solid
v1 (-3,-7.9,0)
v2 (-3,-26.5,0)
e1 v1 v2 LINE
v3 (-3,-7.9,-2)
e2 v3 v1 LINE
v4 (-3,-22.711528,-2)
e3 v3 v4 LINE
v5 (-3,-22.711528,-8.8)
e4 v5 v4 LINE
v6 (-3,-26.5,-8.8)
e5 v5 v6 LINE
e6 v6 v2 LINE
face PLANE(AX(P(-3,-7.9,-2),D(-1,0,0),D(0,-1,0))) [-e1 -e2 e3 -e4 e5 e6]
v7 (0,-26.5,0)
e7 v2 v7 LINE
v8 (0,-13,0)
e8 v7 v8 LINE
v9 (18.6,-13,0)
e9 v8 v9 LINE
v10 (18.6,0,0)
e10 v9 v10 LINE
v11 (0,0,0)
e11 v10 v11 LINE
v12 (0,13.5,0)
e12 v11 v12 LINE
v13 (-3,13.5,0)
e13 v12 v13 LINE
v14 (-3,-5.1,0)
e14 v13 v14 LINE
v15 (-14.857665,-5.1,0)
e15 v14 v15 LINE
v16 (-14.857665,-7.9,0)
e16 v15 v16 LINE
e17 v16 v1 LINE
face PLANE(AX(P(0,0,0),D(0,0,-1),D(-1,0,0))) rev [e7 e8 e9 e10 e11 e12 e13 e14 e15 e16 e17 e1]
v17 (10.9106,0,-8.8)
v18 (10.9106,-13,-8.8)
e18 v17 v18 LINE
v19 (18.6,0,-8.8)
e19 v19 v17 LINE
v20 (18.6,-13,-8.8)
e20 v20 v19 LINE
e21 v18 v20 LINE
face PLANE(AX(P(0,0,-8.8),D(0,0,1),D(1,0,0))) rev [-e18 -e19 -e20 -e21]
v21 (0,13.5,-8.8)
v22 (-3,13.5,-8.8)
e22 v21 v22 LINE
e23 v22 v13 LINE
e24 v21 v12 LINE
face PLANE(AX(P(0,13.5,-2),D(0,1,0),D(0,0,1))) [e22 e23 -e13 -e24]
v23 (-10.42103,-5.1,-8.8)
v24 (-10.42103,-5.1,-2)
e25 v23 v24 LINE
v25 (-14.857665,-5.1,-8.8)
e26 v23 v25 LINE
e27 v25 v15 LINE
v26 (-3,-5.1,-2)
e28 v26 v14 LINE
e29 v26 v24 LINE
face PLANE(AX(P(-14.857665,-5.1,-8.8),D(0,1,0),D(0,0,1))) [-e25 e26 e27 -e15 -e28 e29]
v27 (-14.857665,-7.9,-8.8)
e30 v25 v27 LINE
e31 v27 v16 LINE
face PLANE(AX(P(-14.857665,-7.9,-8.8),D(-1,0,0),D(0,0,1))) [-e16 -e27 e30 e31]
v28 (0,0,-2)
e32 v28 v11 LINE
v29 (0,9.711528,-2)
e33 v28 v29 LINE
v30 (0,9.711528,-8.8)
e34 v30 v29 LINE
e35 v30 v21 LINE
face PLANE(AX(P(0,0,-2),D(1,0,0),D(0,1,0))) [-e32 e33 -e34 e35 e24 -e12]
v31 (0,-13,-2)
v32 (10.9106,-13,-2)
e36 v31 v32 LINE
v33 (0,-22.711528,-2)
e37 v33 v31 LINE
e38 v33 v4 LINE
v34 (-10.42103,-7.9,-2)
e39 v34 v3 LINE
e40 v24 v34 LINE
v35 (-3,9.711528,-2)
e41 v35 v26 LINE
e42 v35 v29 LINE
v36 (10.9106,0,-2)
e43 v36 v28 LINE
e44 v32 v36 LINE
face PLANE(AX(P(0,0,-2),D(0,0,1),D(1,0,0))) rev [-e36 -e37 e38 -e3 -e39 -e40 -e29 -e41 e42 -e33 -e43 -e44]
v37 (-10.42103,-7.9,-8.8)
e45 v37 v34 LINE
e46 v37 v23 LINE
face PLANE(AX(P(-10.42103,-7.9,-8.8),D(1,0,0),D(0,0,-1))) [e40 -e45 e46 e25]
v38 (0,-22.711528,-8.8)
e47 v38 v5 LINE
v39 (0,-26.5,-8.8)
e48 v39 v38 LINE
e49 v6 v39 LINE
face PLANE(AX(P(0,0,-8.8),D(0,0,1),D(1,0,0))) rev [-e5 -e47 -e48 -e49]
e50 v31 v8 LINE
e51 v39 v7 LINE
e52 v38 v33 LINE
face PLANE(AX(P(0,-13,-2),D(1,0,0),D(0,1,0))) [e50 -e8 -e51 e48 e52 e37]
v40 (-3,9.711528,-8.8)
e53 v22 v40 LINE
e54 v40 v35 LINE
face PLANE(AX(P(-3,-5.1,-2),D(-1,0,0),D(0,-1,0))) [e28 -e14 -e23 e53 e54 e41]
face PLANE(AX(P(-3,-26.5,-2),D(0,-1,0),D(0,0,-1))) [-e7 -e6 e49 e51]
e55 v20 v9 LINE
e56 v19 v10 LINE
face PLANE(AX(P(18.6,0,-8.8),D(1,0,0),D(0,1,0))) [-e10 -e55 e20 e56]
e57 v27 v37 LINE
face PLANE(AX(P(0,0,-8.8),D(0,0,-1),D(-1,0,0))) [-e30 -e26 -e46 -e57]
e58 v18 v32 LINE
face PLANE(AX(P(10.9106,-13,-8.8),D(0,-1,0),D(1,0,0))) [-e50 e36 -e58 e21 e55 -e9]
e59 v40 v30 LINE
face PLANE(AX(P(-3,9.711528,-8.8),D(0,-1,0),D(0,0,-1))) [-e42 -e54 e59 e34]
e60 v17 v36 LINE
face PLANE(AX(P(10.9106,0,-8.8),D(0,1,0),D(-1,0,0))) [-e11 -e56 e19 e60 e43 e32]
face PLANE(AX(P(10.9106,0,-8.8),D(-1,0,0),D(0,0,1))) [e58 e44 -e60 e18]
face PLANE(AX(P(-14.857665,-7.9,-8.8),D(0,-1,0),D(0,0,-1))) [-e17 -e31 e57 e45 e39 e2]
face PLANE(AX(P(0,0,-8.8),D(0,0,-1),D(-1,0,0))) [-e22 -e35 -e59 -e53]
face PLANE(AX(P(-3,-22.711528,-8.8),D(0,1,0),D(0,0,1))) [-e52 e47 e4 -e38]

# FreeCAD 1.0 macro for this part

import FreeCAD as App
import Part
import Sketcher

V = App.Vector

doc = App.newDocument("Part")
params = doc.addObject("Spreadsheet::Sheet", "Params")
for row, (alias, value) in enumerate([
    ("sketch1_height", "2.8 mm"),
    ("pad1_length", "8.8 mm"),
    ("sketch2_height", "13 mm"),
    ("pad2_length", "8.8 mm"),
    ("sketch3_width", "3 mm"),
    ("pad3_length", "8.8 mm"),
    ("sketch4_width", "3 mm"),
    ("pad4_length", "8.8 mm"),
    ("sketch5_width", "3 mm"),
    ("sketch5_height", "13 mm"),
    ("sketch5_width2", "18.6 mm"),
    ("sketch5_height2", "13.5 mm"),
    ("pad5_length", "2 mm"),
], start=1):
    params.set(f"A{row}", alias)
    params.set(f"B{row}", "=" + value)
    params.setAlias(f"B{row}", alias)

body = doc.addObject("PartDesign::Body", "Body")

# Sketch on XY plane
sketch1 = body.newObject("Sketcher::SketchObject", "Sketch")
sketch1.AttachmentSupport = (doc.getObject("XY_Plane"), [""])
sketch1.MapMode = "FlatFace"
sketch1.addGeometry([
    Part.LineSegment(V(-14.9, -5.1, 0), V(-14.9, -7.9, 0)),
    Part.LineSegment(V(-14.9, -7.9, 0), V(-10.4, -7.9, 0)),
    Part.LineSegment(V(-10.4, -7.9, 0), V(-10.4, -5.1, 0)),
    Part.LineSegment(V(-10.4, -5.1, 0), V(-14.9, -5.1, 0)),
], False)
sketch1.addConstraint([
    Sketcher.Constraint("Coincident", 0, 2, 1, 1),
    Sketcher.Constraint("Coincident", 1, 2, 2, 1),
    Sketcher.Constraint("Coincident", 2, 2, 3, 1),
    Sketcher.Constraint("Coincident", 3, 2, 0, 1),
    Sketcher.Constraint("Vertical", 0),
    Sketcher.Constraint("Horizontal", 1),
    Sketcher.Constraint("Vertical", 2),
    Sketcher.Constraint("Horizontal", 3),
    Sketcher.Constraint("DistanceY", 0, 2, 0, 1, 2.8),
    Sketcher.Constraint("DistanceY", 0, 2, -1, 1, 7.9),
    Sketcher.Constraint("DistanceX", 1, 1, 1, 2, 4.436636),
    Sketcher.Constraint("DistanceX", 1, 2, -1, 1, 10.42103),
])
sketch1.setExpression("Constraints[8]", "Params.sketch1_height")
pad1 = body.newObject("PartDesign::Pad", "Pad")
pad1.Profile = sketch1
pad1.setExpression("Length", "Params.pad1_length")
pad1.Reversed = True
body2 = doc.addObject("PartDesign::Body", "Body001")

# Sketch on XY plane
sketch2 = body2.newObject("Sketcher::SketchObject", "Sketch001")
sketch2.AttachmentSupport = (doc.getObject("XY_Plane001"), [""])
sketch2.MapMode = "FlatFace"
sketch2.addGeometry([
    Part.LineSegment(V(11, 0, 0), V(11, -13, 0)),
    Part.LineSegment(V(11, -13, 0), V(19, -13, 0)),
    Part.LineSegment(V(19, -13, 0), V(19, 0, 0)),
    Part.LineSegment(V(19, 0, 0), V(11, 0, 0)),
], False)
sketch2.addConstraint([
    Sketcher.Constraint("Coincident", 0, 2, 1, 1),
    Sketcher.Constraint("Coincident", 1, 2, 2, 1),
    Sketcher.Constraint("Coincident", 2, 2, 3, 1),
    Sketcher.Constraint("Coincident", 3, 2, 0, 1),
    Sketcher.Constraint("Vertical", 0),
    Sketcher.Constraint("Horizontal", 1),
    Sketcher.Constraint("Vertical", 2),
    Sketcher.Constraint("Horizontal", 3),
    Sketcher.Constraint("PointOnObject", 2, 2, -1),
    Sketcher.Constraint("DistanceY", 0, 2, 0, 1, 13.0),
    Sketcher.Constraint("DistanceX", -1, 1, 1, 2, 18.6),
    Sketcher.Constraint("DistanceX", 1, 1, 1, 2, 7.6894),
])
sketch2.setExpression("Constraints[9]", "Params.sketch2_height")
pad2 = body2.newObject("PartDesign::Pad", "Pad001")
pad2.Profile = sketch2
pad2.setExpression("Length", "Params.pad2_length")
pad2.Reversed = True
body3 = doc.addObject("PartDesign::Body", "Body002")

# Sketch on XY plane
sketch3 = body3.newObject("Sketcher::SketchObject", "Sketch002")
sketch3.AttachmentSupport = (doc.getObject("XY_Plane002"), [""])
sketch3.MapMode = "FlatFace"
sketch3.addGeometry([
    Part.LineSegment(V(-3, 13.5, 0), V(-3, 9.7, 0)),
    Part.LineSegment(V(-3, 9.7, 0), V(0, 9.7, 0)),
    Part.LineSegment(V(0, 9.7, 0), V(0, 13.5, 0)),
    Part.LineSegment(V(0, 13.5, 0), V(-3, 13.5, 0)),
], False)
sketch3.addConstraint([
    Sketcher.Constraint("Coincident", 0, 2, 1, 1),
    Sketcher.Constraint("Coincident", 1, 2, 2, 1),
    Sketcher.Constraint("Coincident", 2, 2, 3, 1),
    Sketcher.Constraint("Coincident", 3, 2, 0, 1),
    Sketcher.Constraint("Vertical", 0),
    Sketcher.Constraint("Horizontal", 1),
    Sketcher.Constraint("Vertical", 2),
    Sketcher.Constraint("Horizontal", 3),
    Sketcher.Constraint("PointOnObject", 1, 2, -2),
    Sketcher.Constraint("DistanceX", 1, 1, 1, 2, 3.0),
    Sketcher.Constraint("DistanceY", -1, 1, 2, 2, 13.5),
    Sketcher.Constraint("DistanceY", 0, 2, 0, 1, 3.788472),
])
sketch3.setExpression("Constraints[9]", "Params.sketch3_width")
pad3 = body3.newObject("PartDesign::Pad", "Pad002")
pad3.Profile = sketch3
pad3.setExpression("Length", "Params.pad3_length")
pad3.Reversed = True
body4 = doc.addObject("PartDesign::Body", "Body003")

# Sketch on XY plane
sketch4 = body4.newObject("Sketcher::SketchObject", "Sketch003")
sketch4.AttachmentSupport = (doc.getObject("XY_Plane003"), [""])
sketch4.MapMode = "FlatFace"
sketch4.addGeometry([
    Part.LineSegment(V(-3, -22.7, 0), V(-3, -26.5, 0)),
    Part.LineSegment(V(-3, -26.5, 0), V(0, -26.5, 0)),
    Part.LineSegment(V(0, -26.5, 0), V(0, -22.7, 0)),
    Part.LineSegment(V(0, -22.7, 0), V(-3, -22.7, 0)),
], False)
sketch4.addConstraint([
    Sketcher.Constraint("Coincident", 0, 2, 1, 1),
    Sketcher.Constraint("Coincident", 1, 2, 2, 1),
    Sketcher.Constraint("Coincident", 2, 2, 3, 1),
    Sketcher.Constraint("Coincident", 3, 2, 0, 1),
    Sketcher.Constraint("Vertical", 0),
    Sketcher.Constraint("Horizontal", 1),
    Sketcher.Constraint("Vertical", 2),
    Sketcher.Constraint("Horizontal", 3),
    Sketcher.Constraint("PointOnObject", 1, 2, -2),
    Sketcher.Constraint("DistanceX", 1, 1, 1, 2, 3.0),
    Sketcher.Constraint("DistanceY", 0, 2, -1, 1, 26.5),
    Sketcher.Constraint("DistanceY", 0, 2, 0, 1, 3.788472),
])
sketch4.setExpression("Constraints[9]", "Params.sketch4_width")
pad4 = body4.newObject("PartDesign::Pad", "Pad003")
pad4.Profile = sketch4
pad4.setExpression("Length", "Params.pad4_length")
pad4.Reversed = True
body2.AllowCompound = True
doc.recompute()

boolean = body2.newObject("PartDesign::Boolean", "Boolean")
boolean.Type = "Fuse"
boolean.addObjects([body3])
doc.recompute()

boolean2 = body2.newObject("PartDesign::Boolean", "Boolean001")
boolean2.Type = "Fuse"
boolean2.addObjects([body4])

# Sketch on XY plane
sketch5 = body2.newObject("Sketcher::SketchObject", "Sketch004")
sketch5.AttachmentSupport = (doc.getObject("XY_Plane001"), [""])
sketch5.MapMode = "FlatFace"
sketch5.addGeometry([
    Part.LineSegment(V(0, -13, 0), V(18.6, -13, 0)),  # 0
    Part.LineSegment(V(18.6, -13, 0), V(18.6, 0, 0)),  # 1
    Part.LineSegment(V(18.6, 0, 0), V(0, 0, 0)),  # 2
    Part.LineSegment(V(0, 0, 0), V(0, 13.5, 0)),  # 3
    Part.LineSegment(V(0, 13.5, 0), V(-3, 13.5, 0)),  # 4
    Part.LineSegment(V(-3, 13.5, 0), V(-3, -5.1, 0)),  # 5
    Part.LineSegment(V(-3, -5.1, 0), V(-14.9, -5.1, 0)),  # 6
    Part.LineSegment(V(-14.9, -5.1, 0), V(-14.9, -7.9, 0)),  # 7
    Part.LineSegment(V(-14.9, -7.9, 0), V(-3, -7.9, 0)),  # 8
    Part.LineSegment(V(-3, -7.9, 0), V(-3, -26.5, 0)),  # 9
    Part.LineSegment(V(-3, -26.5, 0), V(0, -26.5, 0)),  # 10
    Part.LineSegment(V(0, -26.5, 0), V(0, -13, 0)),  # 11
], False)
sketch5.addConstraint([
    Sketcher.Constraint("Coincident", 0, 2, 1, 1),
    Sketcher.Constraint("Coincident", 1, 2, 2, 1),
    Sketcher.Constraint("Coincident", 2, 2, 3, 1),
    Sketcher.Constraint("Coincident", 3, 2, 4, 1),
    Sketcher.Constraint("Coincident", 4, 2, 5, 1),
    Sketcher.Constraint("Coincident", 5, 2, 6, 1),
    Sketcher.Constraint("Coincident", 6, 2, 7, 1),
    Sketcher.Constraint("Coincident", 7, 2, 8, 1),
    Sketcher.Constraint("Coincident", 8, 2, 9, 1),
    Sketcher.Constraint("Coincident", 9, 2, 10, 1),
    Sketcher.Constraint("Coincident", 10, 2, 11, 1),
    Sketcher.Constraint("Coincident", 11, 2, 0, 1),
    Sketcher.Constraint("Horizontal", 0),
    Sketcher.Constraint("Vertical", 1),
    Sketcher.Constraint("Horizontal", 2),
    Sketcher.Constraint("Vertical", 3),
    Sketcher.Constraint("Horizontal", 4),
    Sketcher.Constraint("Vertical", 5),
    Sketcher.Constraint("Horizontal", 6),
    Sketcher.Constraint("Vertical", 7),
    Sketcher.Constraint("Horizontal", 8),
    Sketcher.Constraint("Vertical", 9),
    Sketcher.Constraint("Horizontal", 10),
    Sketcher.Constraint("Vertical", 11),
    Sketcher.Constraint("Coincident", 2, 2, -1, 1),
    Sketcher.Constraint("PointOnObject", 10, 2, -2),
    Sketcher.Constraint("Vertical", 5, 2, 8, 2),
    Sketcher.Constraint("Equal", 2, 5),
    Sketcher.Constraint("Equal", 5, 9),
    Sketcher.Constraint("Equal", 3, 11),
    Sketcher.Constraint("DistanceX", 4, 2, 4, 1, 3.0),
    Sketcher.Constraint("DistanceY", 1, 1, 1, 2, 13.0),
    Sketcher.Constraint("DistanceX", 0, 1, 0, 2, 18.6),
    Sketcher.Constraint("DistanceY", 3, 1, 3, 2, 13.5),
    Sketcher.Constraint("DistanceX", 6, 2, 6, 1, 11.857665),
])
sketch5.setExpression("Constraints[30]", "Params.sketch5_width")
sketch5.setExpression("Constraints[31]", "Params.sketch5_height")
sketch5.setExpression("Constraints[32]", "Params.sketch5_width2")
sketch5.setExpression("Constraints[33]", "Params.sketch5_height2")
pad5 = body2.newObject("PartDesign::Pad", "Pad004")
pad5.Profile = sketch5
pad5.setExpression("Length", "Params.pad5_length")
pad5.Reversed = True
doc.recompute()

boolean3 = body.newObject("PartDesign::Boolean", "Boolean002")
boolean3.Type = "Fuse"
boolean3.addObjects([body2])

doc.recompute()
